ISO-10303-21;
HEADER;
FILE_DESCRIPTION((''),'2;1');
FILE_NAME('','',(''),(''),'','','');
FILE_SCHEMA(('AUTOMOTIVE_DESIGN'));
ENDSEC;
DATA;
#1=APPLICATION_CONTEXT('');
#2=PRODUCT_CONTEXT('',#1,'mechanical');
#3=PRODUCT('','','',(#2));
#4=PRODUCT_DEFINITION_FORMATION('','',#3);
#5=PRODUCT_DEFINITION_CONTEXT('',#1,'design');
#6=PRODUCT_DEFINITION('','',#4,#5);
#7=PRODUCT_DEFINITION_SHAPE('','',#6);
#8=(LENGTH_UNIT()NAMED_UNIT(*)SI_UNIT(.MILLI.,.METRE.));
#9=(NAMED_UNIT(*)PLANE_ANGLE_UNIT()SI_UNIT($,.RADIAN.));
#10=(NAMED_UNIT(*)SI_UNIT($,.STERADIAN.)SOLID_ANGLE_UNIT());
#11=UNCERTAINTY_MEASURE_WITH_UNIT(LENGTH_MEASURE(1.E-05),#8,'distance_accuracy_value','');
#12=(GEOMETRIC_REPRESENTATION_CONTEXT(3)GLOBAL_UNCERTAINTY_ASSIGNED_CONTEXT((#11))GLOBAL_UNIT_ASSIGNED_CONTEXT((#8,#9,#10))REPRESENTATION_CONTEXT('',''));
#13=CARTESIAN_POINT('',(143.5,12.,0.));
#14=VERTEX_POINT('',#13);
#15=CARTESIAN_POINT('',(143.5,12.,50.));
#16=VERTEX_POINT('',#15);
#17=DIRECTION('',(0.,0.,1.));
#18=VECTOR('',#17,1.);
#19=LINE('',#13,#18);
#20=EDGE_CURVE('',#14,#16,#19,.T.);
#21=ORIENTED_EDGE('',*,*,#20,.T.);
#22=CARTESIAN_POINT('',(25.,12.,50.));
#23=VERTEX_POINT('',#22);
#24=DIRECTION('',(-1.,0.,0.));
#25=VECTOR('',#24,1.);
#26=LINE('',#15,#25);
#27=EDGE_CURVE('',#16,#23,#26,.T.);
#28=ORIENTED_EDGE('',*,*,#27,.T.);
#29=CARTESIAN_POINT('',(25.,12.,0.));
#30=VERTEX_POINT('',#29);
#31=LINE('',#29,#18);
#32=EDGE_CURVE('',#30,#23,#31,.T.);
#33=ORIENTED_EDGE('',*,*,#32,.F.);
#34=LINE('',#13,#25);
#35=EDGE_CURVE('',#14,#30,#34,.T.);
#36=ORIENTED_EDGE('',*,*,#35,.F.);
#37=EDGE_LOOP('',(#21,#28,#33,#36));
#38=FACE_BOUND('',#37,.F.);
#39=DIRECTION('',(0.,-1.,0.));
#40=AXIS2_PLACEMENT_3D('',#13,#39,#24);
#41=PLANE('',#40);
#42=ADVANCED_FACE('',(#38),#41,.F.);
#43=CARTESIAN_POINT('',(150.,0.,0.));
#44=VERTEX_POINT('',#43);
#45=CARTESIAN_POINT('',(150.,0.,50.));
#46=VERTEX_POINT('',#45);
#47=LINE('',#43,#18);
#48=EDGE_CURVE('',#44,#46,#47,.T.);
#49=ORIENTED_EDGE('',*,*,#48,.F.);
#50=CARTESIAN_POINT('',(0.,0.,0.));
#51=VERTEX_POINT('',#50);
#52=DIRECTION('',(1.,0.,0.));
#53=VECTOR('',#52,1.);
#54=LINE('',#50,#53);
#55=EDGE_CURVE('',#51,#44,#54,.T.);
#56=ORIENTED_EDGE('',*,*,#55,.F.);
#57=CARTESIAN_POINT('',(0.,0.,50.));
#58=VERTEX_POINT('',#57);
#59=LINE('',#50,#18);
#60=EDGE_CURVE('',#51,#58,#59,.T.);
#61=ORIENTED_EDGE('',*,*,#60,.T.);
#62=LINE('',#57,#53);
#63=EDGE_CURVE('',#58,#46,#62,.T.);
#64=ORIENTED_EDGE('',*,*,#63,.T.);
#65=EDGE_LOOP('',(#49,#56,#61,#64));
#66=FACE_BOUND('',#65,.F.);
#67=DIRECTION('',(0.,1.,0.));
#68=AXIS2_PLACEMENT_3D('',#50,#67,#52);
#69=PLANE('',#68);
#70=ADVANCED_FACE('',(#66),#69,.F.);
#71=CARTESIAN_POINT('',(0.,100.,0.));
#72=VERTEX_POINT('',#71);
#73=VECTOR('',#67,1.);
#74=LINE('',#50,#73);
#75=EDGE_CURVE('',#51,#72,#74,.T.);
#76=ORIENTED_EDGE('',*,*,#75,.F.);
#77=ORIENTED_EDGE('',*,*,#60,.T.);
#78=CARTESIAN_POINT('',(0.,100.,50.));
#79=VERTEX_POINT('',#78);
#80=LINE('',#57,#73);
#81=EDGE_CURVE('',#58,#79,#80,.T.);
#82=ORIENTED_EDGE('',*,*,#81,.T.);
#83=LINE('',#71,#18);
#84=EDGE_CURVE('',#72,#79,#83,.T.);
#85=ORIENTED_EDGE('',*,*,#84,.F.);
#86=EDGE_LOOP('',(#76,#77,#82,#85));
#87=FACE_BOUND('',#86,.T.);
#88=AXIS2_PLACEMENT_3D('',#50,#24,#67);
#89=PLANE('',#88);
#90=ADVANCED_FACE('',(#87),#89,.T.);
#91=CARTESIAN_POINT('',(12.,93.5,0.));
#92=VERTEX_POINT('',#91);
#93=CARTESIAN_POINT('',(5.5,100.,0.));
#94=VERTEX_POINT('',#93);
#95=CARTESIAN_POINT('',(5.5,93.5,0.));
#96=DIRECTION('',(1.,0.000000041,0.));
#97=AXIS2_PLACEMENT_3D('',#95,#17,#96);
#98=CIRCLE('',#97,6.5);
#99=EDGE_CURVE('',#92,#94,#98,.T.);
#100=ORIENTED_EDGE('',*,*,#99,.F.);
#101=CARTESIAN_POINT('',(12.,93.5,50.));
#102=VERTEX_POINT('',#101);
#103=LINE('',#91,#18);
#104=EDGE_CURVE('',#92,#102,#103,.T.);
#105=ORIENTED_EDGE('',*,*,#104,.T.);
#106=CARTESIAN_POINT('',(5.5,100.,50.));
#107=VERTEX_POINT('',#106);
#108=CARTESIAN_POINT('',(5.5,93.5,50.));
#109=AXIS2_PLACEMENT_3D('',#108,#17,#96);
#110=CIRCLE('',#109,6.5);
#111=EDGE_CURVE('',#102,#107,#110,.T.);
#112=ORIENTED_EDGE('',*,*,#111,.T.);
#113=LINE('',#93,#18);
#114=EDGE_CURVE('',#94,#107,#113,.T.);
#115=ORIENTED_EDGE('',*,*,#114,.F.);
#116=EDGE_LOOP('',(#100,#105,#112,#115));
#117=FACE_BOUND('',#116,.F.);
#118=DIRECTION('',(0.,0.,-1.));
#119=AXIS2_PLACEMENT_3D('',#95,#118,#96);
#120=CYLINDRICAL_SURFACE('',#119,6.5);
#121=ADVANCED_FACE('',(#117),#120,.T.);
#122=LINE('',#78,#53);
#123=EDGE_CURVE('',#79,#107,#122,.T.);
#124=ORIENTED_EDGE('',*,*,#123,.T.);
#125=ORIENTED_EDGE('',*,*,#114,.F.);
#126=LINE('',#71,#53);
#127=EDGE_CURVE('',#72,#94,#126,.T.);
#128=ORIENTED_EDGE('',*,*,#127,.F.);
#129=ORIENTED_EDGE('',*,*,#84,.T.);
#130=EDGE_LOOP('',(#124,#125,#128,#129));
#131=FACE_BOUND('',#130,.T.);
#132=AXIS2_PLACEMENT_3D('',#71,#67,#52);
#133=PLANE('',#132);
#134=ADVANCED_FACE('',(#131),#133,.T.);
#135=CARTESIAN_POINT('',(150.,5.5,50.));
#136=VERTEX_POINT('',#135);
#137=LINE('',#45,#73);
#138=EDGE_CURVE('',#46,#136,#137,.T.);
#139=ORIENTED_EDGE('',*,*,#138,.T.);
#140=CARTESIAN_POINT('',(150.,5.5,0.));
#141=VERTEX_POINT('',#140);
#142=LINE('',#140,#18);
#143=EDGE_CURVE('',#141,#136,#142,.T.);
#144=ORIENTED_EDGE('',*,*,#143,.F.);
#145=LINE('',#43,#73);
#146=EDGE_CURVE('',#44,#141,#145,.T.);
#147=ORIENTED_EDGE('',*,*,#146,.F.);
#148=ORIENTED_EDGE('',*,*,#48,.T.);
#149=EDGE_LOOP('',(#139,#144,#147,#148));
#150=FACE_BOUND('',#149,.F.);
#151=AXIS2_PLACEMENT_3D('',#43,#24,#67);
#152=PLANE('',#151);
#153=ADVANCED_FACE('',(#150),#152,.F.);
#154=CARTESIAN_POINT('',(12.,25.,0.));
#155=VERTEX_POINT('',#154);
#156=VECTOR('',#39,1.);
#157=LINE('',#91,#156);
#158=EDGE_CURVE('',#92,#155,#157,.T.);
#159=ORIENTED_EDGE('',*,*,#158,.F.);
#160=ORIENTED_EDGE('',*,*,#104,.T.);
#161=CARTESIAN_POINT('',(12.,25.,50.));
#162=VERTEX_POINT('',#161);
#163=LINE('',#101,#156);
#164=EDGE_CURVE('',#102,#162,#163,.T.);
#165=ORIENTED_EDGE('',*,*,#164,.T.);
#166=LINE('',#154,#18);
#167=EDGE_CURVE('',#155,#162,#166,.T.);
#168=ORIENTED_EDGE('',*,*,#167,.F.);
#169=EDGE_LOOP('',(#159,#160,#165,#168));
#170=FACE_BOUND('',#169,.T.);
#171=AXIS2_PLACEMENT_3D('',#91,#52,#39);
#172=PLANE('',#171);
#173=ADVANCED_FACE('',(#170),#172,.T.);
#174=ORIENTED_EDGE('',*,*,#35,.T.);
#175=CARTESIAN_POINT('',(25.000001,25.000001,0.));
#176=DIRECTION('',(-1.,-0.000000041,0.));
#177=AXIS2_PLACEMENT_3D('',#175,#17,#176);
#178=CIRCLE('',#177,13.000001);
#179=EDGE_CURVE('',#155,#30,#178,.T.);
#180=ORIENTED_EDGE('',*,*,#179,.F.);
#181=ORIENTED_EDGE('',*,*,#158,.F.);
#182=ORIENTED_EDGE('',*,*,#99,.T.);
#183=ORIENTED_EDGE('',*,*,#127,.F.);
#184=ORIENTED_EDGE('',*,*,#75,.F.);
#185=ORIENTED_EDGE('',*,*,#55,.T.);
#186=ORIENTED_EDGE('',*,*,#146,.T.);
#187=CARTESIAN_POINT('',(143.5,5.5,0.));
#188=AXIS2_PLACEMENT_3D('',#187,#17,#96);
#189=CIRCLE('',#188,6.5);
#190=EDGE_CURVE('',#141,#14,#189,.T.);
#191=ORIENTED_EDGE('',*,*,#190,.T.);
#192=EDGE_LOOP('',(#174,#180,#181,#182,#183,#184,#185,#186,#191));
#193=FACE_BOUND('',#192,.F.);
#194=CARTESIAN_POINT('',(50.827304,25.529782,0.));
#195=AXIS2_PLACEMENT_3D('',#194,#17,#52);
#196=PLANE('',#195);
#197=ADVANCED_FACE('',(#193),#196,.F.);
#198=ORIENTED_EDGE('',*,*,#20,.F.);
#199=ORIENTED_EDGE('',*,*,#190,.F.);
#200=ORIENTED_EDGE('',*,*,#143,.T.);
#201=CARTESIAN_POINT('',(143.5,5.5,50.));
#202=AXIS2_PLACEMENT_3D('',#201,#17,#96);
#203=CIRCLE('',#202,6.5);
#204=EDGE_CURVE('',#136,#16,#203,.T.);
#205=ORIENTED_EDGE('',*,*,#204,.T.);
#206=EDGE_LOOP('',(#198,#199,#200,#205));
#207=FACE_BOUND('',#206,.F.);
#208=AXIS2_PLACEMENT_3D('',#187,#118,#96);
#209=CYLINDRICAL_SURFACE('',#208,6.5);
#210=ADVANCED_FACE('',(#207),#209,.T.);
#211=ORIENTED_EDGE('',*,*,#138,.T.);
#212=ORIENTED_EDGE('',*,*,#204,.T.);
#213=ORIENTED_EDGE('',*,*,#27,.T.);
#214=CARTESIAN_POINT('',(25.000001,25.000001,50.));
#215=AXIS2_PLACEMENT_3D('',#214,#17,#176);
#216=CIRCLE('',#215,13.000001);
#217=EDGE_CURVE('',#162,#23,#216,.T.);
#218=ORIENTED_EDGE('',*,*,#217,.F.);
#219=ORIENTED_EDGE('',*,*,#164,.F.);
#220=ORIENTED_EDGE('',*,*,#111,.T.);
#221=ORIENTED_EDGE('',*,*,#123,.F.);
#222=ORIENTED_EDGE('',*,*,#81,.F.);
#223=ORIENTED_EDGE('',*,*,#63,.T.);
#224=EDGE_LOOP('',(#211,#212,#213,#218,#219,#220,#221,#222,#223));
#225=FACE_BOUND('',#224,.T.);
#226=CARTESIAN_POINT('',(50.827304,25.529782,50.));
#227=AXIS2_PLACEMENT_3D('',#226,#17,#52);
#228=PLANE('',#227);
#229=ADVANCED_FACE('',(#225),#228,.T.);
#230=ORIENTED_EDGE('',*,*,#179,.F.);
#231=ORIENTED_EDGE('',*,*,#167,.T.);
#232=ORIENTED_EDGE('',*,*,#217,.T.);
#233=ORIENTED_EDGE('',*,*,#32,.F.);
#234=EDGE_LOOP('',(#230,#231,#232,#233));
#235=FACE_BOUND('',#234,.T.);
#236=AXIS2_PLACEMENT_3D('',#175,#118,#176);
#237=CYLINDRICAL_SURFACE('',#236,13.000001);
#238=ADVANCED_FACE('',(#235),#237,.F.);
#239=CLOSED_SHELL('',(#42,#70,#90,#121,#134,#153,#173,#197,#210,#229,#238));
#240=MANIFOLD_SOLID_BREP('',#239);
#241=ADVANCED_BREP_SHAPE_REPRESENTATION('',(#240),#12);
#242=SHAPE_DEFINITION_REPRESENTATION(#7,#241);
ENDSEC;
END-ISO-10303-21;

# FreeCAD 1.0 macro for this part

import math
import FreeCAD as App
import Part
import Sketcher
from FreeCAD import Vector

doc = App.newDocument("Part")
body = doc.addObject("PartDesign::Body", "Body")

# Sketch on XY plane
sketch1 = body.newObject("Sketcher::SketchObject", "Sketch")
sketch1.AttachmentSupport = (doc.getObject("XY_Plane"), [""])
sketch1.MapMode = "FlatFace"
sketch1.addGeometry([
    Part.LineSegment(Vector(0, 0, 0), Vector(150, 0, 0)),  # 0
    Part.LineSegment(Vector(150, 0, 0), Vector(150, 6, 0)),  # 1
    Part.ArcOfCircle(Part.Circle(Vector(143, 5, 0), Vector(0, 0, 1), 7), math.radians(0), math.radians(90)),  # 2
    Part.LineSegment(Vector(144, 12, 0), Vector(25, 12, 0)),  # 3
    Part.ArcOfCircle(Part.Circle(Vector(25, 25, 0), Vector(0, 0, 1), 13), math.radians(-180), math.radians(-90)),  # 4
    Part.LineSegment(Vector(12, 25, 0), Vector(12, 94, 0)),  # 5
    Part.ArcOfCircle(Part.Circle(Vector(5, 93, 0), Vector(0, 0, 1), 7), math.radians(0), math.radians(90)),  # 6
    Part.LineSegment(Vector(6, 100, 0), Vector(0, 100, 0)),  # 7
    Part.LineSegment(Vector(0, 100, 0), Vector(0, 0, 0)),  # 8
], False)
sketch1.addConstraint([
    Sketcher.Constraint("Coincident", 0, 2, 1, 1),
    Sketcher.Constraint("Tangent", 1, 2, 2, 1),
    Sketcher.Constraint("Tangent", 2, 2, 3, 1),
    Sketcher.Constraint("Tangent", 3, 2, 4, 2),
    Sketcher.Constraint("Tangent", 4, 1, 5, 1),
    Sketcher.Constraint("Tangent", 5, 2, 6, 1),
    Sketcher.Constraint("Tangent", 6, 2, 7, 1),
    Sketcher.Constraint("Coincident", 7, 2, 8, 1),
    Sketcher.Constraint("Coincident", 8, 2, 0, 1),
    Sketcher.Constraint("Horizontal", 0),
    Sketcher.Constraint("Vertical", 1),
    Sketcher.Constraint("Horizontal", 3),
    Sketcher.Constraint("Vertical", 5),
    Sketcher.Constraint("Horizontal", 7),
    Sketcher.Constraint("Vertical", 8),
    Sketcher.Constraint("Coincident", 8, 2, -1, 1),
    Sketcher.Constraint("Equal", 2, 6),
    Sketcher.Constraint("Equal", 7, 1),
    Sketcher.Constraint("Radius", 4, 13.000001),
    Sketcher.Constraint("Radius", 2, 6.5),
    Sketcher.Constraint("DistanceX", 0, 1, 0, 2, 150.0),
    Sketcher.Constraint("DistanceY", 8, 2, 8, 1, 100.0),
    Sketcher.Constraint("DistanceX", 3, 2, 3, 1, 118.5),
])
pad1 = body.newObject("PartDesign::Pad", "Pad")
pad1.Profile = sketch1
pad1.Length = 50

doc.recompute()
